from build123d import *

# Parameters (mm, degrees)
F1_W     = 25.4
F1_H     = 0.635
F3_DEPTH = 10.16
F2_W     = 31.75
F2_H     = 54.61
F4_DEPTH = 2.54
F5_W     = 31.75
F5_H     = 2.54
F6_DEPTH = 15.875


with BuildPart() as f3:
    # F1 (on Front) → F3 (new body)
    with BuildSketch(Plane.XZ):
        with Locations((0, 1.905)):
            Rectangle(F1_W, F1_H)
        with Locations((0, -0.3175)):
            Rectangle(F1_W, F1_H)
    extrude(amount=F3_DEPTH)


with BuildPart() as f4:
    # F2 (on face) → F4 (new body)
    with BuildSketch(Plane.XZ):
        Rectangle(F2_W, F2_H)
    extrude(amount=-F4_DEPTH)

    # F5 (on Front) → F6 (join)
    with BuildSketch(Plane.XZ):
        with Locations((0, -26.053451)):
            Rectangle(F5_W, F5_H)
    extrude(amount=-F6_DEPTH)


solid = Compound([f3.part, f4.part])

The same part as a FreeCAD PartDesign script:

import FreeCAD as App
import Part
import Sketcher
Q = App.Units.Quantity


def add_polygon(sketch, points):
    """Adds a closed chain of lines whose ends are joined by coincident constraints."""
    first, n = sketch.GeometryCount, len(points)
    for a, b in zip(points, points[1:] + points[:1]):
        sketch.addGeometry(Part.LineSegment(App.Vector(*a, 0), App.Vector(*b, 0)), False)
    for i in range(n):
        sketch.addConstraint(Sketcher.Constraint("Coincident", first + i, 2, first + (i + 1) % n, 1))

doc = App.newDocument("Part")
body = doc.addObject("PartDesign::Body", "Body")
body.AllowCompound = True

# Sketch on XZ plane
sketch1 = body.newObject("Sketcher::SketchObject", "Sketch")
sketch1.AttachmentSupport = (doc.getObject("XZ_Plane"), [""])
sketch1.MapMode = "FlatFace"
add_polygon(sketch1, [(-12.7, 2.2), (-12.7, 1.6), (12.7, 1.6), (12.7, 2.2)])  # lines 0-3
add_polygon(sketch1, [(-12.7, 0), (-12.7, -0.6), (12.7, -0.6), (12.7, 0)])  # lines 4-7
sketch1.addConstraint(Sketcher.Constraint("Vertical", 0))
sketch1.addConstraint(Sketcher.Constraint("Horizontal", 1))
sketch1.addConstraint(Sketcher.Constraint("Vertical", 2))
sketch1.addConstraint(Sketcher.Constraint("Horizontal", 3))
sketch1.addConstraint(Sketcher.Constraint("Vertical", 4))
sketch1.addConstraint(Sketcher.Constraint("Horizontal", 5))
sketch1.addConstraint(Sketcher.Constraint("Vertical", 6))
sketch1.addConstraint(Sketcher.Constraint("Horizontal", 7))
sketch1.addConstraint(Sketcher.Constraint("Symmetric", 6, 2, 7, 2, -1, 1))
sketch1.addConstraint(Sketcher.Constraint("Vertical", 3, 2, 4, 2))
sketch1.addConstraint(Sketcher.Constraint("Vertical", 2, 2, 5, 2))
sketch1.addConstraint(Sketcher.Constraint("Equal", 2, 4))
sketch1.addConstraint(Sketcher.Constraint("DistanceX", 1, 1, 1, 2, Q("1 in")))
sketch1.addConstraint(Sketcher.Constraint("DistanceY", 0, 2, 0, 1, Q("0.025 in")))
sketch1.addConstraint(Sketcher.Constraint("DistanceY", -1, 1, 0, 2, Q("0.0625 in")))
pad1 = body.newObject("PartDesign::Pad", "Pad")
pad1.Profile = sketch1
pad1.Length = Q("0.4 in")
body2 = doc.addObject("PartDesign::Body", "Body001")

# Sketch on XZ plane
sketch2 = body2.newObject("Sketcher::SketchObject", "Sketch001")
sketch2.AttachmentSupport = (doc.getObject("XZ_Plane001"), [""])
sketch2.MapMode = "FlatFace"
add_polygon(sketch2, [(-16, 27), (-16, -27), (16, -27), (16, 27)])  # lines 0-3
sketch2.addConstraint(Sketcher.Constraint("Vertical", 0))
sketch2.addConstraint(Sketcher.Constraint("Horizontal", 1))
sketch2.addConstraint(Sketcher.Constraint("Vertical", 2))
sketch2.addConstraint(Sketcher.Constraint("Horizontal", 3))
sketch2.addConstraint(Sketcher.Constraint("Symmetric", 0, 2, 2, 2, -1, 1))
sketch2.addConstraint(Sketcher.Constraint("DistanceX", 1, 1, 1, 2, Q("1.25 in")))
sketch2.addConstraint(Sketcher.Constraint("DistanceY", 0, 2, 0, 1, Q("2.15 in")))
pad2 = body2.newObject("PartDesign::Pad", "Pad001")
pad2.Profile = sketch2
pad2.Length = Q("0.1 in")
pad2.Reversed = True

# Sketch on XZ plane
sketch3 = body2.newObject("Sketcher::SketchObject", "Sketch002")
sketch3.AttachmentSupport = (doc.getObject("XZ_Plane001"), [""])
sketch3.MapMode = "FlatFace"
add_polygon(sketch3, [(-15.9, -24.8), (-15.9, -27.3), (15.9, -27.3), (15.9, -24.8)])  # lines 0-3
sketch3.addConstraint(Sketcher.Constraint("Vertical", 0))
sketch3.addConstraint(Sketcher.Constraint("Horizontal", 1))
sketch3.addConstraint(Sketcher.Constraint("Vertical", 2))
sketch3.addConstraint(Sketcher.Constraint("Horizontal", 3))
sketch3.addConstraint(Sketcher.Constraint("DistanceY", 0, 2, 0, 1, Q("0.1 in")))
sketch3.addConstraint(Sketcher.Constraint("DistanceX", 1, 1, 1, 2, Q("1.25 in")))
sketch3.addConstraint(Sketcher.Constraint("DistanceX", 0, 2, -1, 1, Q("0.625 in")))
sketch3.addConstraint(Sketcher.Constraint("DistanceY", 0, 2, -1, 1, Q("27.323451 mm")))
pad3 = body2.newObject("PartDesign::Pad", "Pad002")
pad3.Profile = sketch3
pad3.Length = Q("0.625 in")
pad3.Reversed = True

doc.recompute()
